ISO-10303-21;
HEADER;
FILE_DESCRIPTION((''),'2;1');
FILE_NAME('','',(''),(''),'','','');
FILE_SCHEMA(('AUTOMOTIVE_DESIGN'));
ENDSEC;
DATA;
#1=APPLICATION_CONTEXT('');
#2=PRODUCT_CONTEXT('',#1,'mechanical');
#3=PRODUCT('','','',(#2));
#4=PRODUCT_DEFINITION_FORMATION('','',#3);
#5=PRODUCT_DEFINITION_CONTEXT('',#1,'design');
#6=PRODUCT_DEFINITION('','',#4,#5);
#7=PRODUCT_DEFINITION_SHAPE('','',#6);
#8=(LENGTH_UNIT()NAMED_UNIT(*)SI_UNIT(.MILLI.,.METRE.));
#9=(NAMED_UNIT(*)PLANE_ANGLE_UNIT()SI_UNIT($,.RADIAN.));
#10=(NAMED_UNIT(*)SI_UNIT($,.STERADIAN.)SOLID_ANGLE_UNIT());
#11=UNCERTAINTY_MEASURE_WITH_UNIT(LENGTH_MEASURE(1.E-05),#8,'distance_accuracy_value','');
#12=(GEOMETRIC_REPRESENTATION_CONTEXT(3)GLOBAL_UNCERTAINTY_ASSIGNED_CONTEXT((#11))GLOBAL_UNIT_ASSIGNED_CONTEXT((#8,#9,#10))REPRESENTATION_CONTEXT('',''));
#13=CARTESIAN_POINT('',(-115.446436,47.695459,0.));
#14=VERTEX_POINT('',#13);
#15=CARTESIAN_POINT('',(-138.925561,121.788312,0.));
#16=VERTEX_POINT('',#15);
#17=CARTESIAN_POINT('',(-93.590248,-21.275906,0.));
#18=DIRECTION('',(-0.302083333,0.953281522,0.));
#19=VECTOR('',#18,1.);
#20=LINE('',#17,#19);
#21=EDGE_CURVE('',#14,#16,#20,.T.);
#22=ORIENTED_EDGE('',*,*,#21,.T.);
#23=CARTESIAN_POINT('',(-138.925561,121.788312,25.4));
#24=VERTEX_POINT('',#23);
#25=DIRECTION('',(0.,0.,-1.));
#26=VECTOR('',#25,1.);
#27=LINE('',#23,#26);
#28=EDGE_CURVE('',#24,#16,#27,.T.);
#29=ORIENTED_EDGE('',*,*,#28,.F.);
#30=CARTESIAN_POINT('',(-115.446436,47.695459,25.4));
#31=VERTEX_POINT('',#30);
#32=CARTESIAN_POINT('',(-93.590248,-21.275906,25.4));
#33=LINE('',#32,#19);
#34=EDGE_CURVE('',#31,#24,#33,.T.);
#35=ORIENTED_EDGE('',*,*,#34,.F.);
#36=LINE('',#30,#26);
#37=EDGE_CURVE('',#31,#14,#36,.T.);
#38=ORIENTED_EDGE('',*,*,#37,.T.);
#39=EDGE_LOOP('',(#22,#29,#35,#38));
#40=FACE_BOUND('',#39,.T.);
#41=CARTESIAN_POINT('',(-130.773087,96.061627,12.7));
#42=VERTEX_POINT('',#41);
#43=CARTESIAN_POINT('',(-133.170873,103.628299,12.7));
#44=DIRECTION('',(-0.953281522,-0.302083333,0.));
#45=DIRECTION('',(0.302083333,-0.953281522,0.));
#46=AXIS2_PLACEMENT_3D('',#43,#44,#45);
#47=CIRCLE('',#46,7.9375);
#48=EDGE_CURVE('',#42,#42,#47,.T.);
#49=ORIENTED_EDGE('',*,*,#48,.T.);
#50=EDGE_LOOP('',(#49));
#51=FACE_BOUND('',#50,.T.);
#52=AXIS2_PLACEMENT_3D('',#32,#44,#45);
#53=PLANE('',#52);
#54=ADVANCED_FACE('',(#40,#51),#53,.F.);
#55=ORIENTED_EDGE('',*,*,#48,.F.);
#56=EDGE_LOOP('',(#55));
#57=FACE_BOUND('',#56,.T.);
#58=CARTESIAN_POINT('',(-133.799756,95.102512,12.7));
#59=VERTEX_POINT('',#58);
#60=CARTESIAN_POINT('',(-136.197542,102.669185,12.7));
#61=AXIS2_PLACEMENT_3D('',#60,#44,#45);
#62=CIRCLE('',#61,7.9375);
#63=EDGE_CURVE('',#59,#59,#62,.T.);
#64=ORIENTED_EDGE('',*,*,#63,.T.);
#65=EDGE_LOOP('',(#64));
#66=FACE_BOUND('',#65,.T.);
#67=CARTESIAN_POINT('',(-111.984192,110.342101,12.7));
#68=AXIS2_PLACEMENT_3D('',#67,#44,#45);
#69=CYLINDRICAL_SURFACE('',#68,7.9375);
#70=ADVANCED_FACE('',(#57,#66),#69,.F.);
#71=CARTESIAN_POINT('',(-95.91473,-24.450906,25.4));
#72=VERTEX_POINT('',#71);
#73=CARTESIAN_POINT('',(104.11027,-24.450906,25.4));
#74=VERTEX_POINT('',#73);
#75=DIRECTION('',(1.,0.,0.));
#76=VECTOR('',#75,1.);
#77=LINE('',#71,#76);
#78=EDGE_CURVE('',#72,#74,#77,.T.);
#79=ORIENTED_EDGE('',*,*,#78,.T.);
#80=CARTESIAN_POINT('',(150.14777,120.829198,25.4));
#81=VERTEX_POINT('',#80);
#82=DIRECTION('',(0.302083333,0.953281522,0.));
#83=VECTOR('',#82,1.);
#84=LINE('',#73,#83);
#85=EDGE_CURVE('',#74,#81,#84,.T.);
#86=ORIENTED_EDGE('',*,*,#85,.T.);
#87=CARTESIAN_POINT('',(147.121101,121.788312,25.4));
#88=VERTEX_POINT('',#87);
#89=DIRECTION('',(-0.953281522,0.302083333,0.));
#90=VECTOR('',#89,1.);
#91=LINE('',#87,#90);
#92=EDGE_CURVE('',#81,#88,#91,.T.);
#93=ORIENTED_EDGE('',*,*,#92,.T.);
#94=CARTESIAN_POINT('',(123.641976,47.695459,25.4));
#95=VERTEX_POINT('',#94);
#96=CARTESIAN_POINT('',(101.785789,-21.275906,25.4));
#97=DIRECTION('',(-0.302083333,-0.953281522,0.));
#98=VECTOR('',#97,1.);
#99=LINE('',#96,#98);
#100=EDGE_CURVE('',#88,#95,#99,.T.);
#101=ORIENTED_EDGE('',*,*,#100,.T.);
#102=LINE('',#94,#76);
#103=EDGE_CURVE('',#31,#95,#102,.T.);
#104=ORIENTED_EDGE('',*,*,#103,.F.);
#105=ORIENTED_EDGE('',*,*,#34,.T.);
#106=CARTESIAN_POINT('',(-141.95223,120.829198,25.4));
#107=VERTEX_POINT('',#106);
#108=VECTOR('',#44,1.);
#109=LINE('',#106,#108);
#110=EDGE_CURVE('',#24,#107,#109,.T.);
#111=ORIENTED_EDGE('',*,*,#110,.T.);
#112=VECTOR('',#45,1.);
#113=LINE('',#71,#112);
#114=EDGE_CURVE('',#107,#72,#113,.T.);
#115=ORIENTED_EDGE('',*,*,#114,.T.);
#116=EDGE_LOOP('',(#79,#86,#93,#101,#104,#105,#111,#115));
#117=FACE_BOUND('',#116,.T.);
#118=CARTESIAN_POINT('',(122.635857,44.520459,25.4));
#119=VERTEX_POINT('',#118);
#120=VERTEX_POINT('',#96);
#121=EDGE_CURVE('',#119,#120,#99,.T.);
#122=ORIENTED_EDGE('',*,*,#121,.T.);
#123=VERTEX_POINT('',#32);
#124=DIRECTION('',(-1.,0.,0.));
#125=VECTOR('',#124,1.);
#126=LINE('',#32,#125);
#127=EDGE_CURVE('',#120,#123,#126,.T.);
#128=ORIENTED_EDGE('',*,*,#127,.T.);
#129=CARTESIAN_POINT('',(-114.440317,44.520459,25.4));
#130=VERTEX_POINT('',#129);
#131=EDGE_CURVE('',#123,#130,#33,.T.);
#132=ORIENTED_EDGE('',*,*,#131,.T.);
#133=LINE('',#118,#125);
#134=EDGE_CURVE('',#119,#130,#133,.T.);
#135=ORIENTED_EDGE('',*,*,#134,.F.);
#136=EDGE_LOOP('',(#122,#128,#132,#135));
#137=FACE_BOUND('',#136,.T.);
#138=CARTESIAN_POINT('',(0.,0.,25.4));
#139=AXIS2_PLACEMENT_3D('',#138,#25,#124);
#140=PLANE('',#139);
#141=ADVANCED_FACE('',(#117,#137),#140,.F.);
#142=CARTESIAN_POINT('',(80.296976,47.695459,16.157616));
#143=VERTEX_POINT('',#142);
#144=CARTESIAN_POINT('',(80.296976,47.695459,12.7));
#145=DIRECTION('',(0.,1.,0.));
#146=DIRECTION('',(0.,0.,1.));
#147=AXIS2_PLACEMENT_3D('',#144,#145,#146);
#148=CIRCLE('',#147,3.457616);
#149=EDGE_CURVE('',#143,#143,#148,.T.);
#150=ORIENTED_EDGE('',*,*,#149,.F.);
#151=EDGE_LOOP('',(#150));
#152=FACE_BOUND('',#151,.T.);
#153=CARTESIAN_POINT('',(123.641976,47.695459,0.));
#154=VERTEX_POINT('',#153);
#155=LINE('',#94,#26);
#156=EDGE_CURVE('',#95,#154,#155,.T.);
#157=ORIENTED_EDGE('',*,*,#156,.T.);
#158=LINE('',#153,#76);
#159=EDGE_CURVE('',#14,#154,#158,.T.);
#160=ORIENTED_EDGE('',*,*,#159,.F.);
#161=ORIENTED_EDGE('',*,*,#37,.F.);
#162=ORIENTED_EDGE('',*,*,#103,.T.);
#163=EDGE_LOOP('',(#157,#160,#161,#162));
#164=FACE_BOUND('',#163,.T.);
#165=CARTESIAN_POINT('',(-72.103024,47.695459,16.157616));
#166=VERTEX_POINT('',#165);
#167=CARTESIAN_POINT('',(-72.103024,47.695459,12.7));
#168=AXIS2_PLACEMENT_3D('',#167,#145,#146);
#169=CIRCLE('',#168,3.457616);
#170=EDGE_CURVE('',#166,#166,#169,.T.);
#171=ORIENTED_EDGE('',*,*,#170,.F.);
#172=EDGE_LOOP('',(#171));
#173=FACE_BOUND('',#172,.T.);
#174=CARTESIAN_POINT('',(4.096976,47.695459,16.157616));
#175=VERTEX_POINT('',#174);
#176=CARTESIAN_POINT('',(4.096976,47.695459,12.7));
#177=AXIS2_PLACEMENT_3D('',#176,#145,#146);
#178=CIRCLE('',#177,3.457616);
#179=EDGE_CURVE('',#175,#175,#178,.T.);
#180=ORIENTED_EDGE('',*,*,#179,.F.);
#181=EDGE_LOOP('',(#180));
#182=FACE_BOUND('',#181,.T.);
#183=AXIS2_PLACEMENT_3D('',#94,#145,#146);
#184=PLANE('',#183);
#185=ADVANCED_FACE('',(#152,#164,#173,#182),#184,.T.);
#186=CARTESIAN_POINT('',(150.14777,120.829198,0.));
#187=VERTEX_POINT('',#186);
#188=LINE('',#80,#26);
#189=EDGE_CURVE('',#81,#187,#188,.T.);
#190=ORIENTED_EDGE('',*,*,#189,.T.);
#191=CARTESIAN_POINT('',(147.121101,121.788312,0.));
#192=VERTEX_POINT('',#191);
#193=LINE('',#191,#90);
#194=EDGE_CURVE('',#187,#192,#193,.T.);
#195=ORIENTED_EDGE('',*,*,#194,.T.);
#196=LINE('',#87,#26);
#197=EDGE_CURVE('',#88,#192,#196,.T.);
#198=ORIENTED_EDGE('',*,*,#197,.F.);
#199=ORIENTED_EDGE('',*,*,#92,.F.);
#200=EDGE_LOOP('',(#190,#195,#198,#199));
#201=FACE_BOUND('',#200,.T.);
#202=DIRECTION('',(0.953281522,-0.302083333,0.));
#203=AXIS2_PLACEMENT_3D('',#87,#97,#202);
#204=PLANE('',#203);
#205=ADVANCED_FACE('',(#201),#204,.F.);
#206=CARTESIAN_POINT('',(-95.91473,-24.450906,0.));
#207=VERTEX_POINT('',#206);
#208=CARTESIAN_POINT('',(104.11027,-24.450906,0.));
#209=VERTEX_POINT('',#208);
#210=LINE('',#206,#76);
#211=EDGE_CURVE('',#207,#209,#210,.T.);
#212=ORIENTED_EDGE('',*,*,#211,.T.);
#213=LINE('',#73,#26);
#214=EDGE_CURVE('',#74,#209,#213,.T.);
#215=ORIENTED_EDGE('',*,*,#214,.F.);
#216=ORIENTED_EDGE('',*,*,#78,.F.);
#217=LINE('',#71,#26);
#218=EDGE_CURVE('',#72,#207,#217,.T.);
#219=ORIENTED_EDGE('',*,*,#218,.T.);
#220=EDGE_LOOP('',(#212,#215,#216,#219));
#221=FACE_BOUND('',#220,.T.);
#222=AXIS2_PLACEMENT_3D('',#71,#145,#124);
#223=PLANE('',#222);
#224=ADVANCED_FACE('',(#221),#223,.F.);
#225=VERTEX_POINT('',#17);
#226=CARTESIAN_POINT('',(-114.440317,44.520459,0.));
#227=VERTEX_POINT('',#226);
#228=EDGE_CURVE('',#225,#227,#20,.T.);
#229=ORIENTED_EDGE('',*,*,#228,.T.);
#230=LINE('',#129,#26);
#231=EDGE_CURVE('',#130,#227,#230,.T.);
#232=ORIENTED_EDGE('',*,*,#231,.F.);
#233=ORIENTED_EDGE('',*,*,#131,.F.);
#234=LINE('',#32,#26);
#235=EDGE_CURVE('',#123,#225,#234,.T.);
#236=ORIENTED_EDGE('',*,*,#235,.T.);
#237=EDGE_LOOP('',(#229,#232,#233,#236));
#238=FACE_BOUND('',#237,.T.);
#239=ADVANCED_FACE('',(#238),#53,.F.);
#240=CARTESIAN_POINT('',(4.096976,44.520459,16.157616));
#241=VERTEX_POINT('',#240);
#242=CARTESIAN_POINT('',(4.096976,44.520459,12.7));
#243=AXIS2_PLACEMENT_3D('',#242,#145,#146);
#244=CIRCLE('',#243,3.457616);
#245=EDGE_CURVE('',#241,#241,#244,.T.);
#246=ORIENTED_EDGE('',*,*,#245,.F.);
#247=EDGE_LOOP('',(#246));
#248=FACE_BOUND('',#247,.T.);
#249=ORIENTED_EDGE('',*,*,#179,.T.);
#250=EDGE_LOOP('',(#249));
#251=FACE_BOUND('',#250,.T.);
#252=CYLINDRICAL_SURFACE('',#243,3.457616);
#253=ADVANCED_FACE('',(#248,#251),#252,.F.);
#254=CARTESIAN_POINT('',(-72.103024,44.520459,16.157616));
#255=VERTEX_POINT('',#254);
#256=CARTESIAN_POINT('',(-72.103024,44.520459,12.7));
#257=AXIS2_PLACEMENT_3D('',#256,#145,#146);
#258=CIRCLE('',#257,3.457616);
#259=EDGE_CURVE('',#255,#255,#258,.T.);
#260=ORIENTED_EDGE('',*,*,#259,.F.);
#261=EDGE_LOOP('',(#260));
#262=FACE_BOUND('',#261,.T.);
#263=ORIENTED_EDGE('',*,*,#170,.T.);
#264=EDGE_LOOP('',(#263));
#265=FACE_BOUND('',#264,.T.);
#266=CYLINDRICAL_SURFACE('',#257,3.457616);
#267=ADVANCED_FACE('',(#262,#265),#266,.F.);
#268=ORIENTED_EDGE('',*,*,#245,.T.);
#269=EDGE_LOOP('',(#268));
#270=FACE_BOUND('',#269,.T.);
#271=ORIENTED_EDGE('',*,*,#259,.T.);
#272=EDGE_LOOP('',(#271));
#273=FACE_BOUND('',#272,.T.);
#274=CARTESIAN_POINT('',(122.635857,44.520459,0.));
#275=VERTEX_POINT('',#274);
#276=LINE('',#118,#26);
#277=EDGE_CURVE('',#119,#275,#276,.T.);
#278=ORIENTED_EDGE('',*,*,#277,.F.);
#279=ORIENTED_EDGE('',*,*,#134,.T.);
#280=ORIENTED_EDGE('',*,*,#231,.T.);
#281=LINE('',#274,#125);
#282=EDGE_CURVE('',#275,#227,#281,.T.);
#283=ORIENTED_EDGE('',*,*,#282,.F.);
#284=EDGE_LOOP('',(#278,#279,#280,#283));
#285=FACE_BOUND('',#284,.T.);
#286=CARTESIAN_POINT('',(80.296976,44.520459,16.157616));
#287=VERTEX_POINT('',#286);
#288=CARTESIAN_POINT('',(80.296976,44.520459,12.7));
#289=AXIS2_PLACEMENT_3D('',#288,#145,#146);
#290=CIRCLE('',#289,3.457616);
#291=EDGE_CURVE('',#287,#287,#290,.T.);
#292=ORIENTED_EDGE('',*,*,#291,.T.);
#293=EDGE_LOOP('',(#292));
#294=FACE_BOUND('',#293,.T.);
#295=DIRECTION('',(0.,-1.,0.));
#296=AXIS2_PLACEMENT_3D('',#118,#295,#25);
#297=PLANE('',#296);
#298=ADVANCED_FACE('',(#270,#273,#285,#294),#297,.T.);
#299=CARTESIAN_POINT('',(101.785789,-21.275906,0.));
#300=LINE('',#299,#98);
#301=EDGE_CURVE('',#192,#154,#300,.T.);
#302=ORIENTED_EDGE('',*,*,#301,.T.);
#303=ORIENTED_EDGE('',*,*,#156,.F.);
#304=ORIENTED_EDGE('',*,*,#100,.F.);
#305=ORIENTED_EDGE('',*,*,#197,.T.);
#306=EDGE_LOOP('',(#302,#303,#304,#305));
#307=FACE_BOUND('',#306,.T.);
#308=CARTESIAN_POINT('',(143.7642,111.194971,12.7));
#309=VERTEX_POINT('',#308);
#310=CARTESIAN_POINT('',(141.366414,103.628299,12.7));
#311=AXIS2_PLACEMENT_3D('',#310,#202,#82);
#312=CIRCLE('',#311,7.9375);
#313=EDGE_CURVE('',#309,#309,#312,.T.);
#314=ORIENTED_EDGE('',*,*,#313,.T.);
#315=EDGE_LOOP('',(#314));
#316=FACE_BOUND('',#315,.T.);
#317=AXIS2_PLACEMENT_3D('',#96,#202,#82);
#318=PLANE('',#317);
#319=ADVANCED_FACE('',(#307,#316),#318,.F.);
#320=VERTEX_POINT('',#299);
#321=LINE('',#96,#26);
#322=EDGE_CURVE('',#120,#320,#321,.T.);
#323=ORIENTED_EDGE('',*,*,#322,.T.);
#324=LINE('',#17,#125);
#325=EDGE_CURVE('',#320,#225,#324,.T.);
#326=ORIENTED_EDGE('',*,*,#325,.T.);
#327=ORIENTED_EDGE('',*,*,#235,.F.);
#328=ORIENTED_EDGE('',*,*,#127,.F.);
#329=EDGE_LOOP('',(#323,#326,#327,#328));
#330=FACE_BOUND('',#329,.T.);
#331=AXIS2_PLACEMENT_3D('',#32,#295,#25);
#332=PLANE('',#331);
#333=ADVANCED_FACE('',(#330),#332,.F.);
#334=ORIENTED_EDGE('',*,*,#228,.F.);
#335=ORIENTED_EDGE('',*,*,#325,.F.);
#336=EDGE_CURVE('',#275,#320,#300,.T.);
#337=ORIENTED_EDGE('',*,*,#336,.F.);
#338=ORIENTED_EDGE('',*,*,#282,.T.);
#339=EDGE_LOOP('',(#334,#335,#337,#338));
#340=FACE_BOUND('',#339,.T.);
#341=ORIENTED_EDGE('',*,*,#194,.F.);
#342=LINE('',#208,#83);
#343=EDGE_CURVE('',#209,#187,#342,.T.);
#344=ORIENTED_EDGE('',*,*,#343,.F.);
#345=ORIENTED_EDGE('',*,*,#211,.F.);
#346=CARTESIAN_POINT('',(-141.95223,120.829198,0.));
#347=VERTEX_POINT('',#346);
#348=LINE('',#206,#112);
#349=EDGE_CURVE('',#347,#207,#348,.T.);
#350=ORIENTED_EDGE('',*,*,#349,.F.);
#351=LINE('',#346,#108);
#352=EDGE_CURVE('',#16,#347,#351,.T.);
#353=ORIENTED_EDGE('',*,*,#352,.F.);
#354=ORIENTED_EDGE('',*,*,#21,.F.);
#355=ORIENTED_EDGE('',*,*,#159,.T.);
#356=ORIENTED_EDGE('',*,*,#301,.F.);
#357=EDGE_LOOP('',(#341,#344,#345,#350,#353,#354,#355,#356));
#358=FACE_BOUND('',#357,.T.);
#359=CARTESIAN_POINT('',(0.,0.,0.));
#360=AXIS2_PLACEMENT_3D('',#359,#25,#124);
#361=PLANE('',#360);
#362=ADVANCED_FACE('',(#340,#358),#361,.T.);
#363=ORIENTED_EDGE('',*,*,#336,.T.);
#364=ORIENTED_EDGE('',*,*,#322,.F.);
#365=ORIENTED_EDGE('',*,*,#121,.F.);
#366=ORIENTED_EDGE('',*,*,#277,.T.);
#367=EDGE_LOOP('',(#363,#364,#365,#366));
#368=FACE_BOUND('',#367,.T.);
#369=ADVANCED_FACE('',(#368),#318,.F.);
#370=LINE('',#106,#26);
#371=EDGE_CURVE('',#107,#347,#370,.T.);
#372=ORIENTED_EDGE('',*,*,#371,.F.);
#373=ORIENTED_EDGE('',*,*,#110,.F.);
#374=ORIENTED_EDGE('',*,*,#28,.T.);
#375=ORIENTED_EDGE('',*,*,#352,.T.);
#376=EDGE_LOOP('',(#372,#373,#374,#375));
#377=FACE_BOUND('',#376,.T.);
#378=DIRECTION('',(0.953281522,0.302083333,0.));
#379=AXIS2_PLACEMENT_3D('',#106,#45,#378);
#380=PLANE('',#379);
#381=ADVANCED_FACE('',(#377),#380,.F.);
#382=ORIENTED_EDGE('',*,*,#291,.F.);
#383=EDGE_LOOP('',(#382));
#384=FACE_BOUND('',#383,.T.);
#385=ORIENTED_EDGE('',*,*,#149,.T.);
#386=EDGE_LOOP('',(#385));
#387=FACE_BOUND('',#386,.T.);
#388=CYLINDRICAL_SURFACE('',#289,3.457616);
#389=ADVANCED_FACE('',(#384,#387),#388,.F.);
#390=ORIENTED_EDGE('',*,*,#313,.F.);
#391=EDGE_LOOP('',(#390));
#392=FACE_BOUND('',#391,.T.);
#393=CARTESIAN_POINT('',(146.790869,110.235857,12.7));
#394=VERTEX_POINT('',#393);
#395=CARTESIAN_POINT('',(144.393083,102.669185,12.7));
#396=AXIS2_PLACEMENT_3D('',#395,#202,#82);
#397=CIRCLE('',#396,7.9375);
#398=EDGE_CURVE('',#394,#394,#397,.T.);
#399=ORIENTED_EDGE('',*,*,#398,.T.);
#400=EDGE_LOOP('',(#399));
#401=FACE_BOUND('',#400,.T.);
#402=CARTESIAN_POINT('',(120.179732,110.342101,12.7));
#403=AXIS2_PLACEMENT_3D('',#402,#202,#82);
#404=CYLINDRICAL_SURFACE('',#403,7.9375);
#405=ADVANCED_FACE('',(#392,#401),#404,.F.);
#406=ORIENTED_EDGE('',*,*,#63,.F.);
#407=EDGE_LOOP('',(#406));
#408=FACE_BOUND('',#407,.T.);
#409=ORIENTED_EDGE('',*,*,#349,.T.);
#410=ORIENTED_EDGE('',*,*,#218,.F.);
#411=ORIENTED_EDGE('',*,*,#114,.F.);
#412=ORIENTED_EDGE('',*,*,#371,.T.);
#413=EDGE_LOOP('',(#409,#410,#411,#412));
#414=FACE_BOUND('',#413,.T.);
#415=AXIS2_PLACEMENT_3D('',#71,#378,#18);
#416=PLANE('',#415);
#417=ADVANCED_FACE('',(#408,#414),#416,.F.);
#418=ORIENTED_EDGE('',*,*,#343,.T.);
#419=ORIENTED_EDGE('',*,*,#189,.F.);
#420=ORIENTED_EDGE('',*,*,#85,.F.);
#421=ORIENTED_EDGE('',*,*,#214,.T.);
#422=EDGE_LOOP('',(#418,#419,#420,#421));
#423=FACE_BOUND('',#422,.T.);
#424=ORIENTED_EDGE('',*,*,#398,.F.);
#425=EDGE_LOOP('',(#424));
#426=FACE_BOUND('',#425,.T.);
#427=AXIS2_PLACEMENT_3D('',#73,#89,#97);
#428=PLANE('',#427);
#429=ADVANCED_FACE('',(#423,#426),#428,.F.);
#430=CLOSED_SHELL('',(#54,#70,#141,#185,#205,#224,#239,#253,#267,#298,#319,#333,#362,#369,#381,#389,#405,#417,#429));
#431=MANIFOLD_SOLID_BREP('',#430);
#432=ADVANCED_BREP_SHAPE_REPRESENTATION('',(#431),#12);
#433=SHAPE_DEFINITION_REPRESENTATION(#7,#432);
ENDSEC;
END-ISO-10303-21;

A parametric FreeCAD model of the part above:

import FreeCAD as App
import Part
import Sketcher
from FreeCAD import Vector
Q = App.Units.Quantity


def add_polygon(sketch, points):
    """Adds a closed chain of lines whose ends are joined by coincident constraints."""
    first, n = sketch.GeometryCount, len(points)
    for a, b in zip(points, points[1:] + points[:1]):
        sketch.addGeometry(Part.LineSegment(App.Vector(*a, 0), App.Vector(*b, 0)), False)
    for i in range(n):
        sketch.addConstraint(Sketcher.Constraint("Coincident", first + i, 2, first + (i + 1) % n, 1))

doc = App.newDocument("Part")
params = doc.addObject("Spreadsheet::Sheet", "Params")
for row, (alias, value) in enumerate([
    ("sketch1_length", "6 in"),
    ("sketch1_width", "7.875 in"),
    ("sketch1_length2", "0.125 in"),
    ("pad1_length", "1 in"),
    ("sketch2_diameter", "0.625 in"),
    ("pocket1_length", "1 in"),
    ("sketch3_diameter", "0.625 in"),
    ("pocket2_length", "1 in"),
    ("pad2_length", "1 in"),
    ("pocket3_length", "0.125 in"),
], start=1):
    params.set(f"A{row}", alias)
    params.set(f"B{row}", "=" + value)
    params.setAlias(f"B{row}", alias)

body = doc.addObject("PartDesign::Body", "Body")

# Sketch on XY plane
sketch1 = body.newObject("Sketcher::SketchObject", "Sketch")
sketch1.AttachmentSupport = (doc.getObject("XY_Plane"), [""])
sketch1.MapMode = "FlatFace"
add_polygon(sketch1, [(-95.9, -24.5), (104.1, -24.5), (150.1, 120.8), (147.1, 121.8), (101.8, -21.3), (-93.6, -21.3), (-138.9, 121.8), (-142, 120.8)])  # lines 0-7
sketch1.addConstraint([
    Sketcher.Constraint("Horizontal", 0),
    Sketcher.Constraint("Horizontal", 4),
    Sketcher.Constraint("Perpendicular", 1, 2),
    Sketcher.Constraint("Perpendicular", 2, 3),
    Sketcher.Constraint("Perpendicular", 5, 6),
    Sketcher.Constraint("Perpendicular", 6, 7),
    Sketcher.Constraint("Horizontal", 2, 2, 5, 2),
    Sketcher.Constraint("Horizontal", 1, 2, 6, 2),
    Sketcher.Constraint("Equal", 3, 5),
    Sketcher.Constraint("Distance", 1, Q("6 in")),
    Sketcher.Constraint("DistanceX", 0, 1, 0, 2, Q("7.875 in")),
    Sketcher.Constraint("Distance", 2, Q("0.125 in")),
    Sketcher.Constraint("DistanceX", 0, 2, 1, 2, Q("1.8125 in")),
    Sketcher.Constraint("DistanceY", 0, 2, 3, 2, Q("0.125 in")),
    Sketcher.Constraint("DistanceX", -1, 1, 2, 2, Q("147.121101 mm")),
    Sketcher.Constraint("DistanceY", 0, 2, -1, 1, Q("24.450906 mm")),
])
sketch1.setExpression("Constraints[17]", "Params.sketch1_length")
sketch1.setExpression("Constraints[18]", "Params.sketch1_width")
sketch1.setExpression("Constraints[19]", "Params.sketch1_length2")
pad1 = body.newObject("PartDesign::Pad", "Pad")
pad1.Profile = sketch1
pad1.setExpression("Length", "Params.pad1_length")

# Sketch on an angled plane
sketch2 = body.newObject("Sketcher::SketchObject", "Sketch001")
sketch2.Placement = App.Placement(Vector(-94.203233, -29.85186, 0), App.Rotation(Vector(0, 0, 1), Vector(-0.302083333, 0.953281522, 0), Vector(-0.953281522, -0.302083333, 0), "ZXY"))
sketch2.addGeometry(Part.Circle(Vector(13, 139, 0), Vector(0, 0, 1), 8), False)
sketch2.addConstraint([
    Sketcher.Constraint("Diameter", 0, Q("0.625 in")),
    Sketcher.Constraint("DistanceX", -1, 1, 0, 3, Q("0.5 in")),
    Sketcher.Constraint("DistanceY", -1, 1, 0, 3, Q("139.015644 mm")),
])
sketch2.setExpression("Constraints[0]", "Params.sketch2_diameter")
pocket1 = body.newObject("PartDesign::Pocket", "Pocket")
pocket1.Profile = sketch2
pocket1.setExpression("Length", "Params.pocket1_length")

# Sketch on an angled plane
sketch3 = body.newObject("Sketcher::SketchObject", "Sketch002")
sketch3.Placement = App.Placement(Vector(101.650895, -32.211934, 0), App.Rotation(Vector(0, 0, -1), Vector(0.302083333, 0.953281522, 0), Vector(0.953281522, -0.302083333, 0), "ZXY"))
sketch3.addGeometry(Part.Circle(Vector(-13, 141, 0), Vector(0, 0, 1), 8), False)
sketch3.addConstraint([
    Sketcher.Constraint("Diameter", 0, Q("0.625 in")),
    Sketcher.Constraint("DistanceX", 0, 3, -1, 1, Q("0.5 in")),
    Sketcher.Constraint("DistanceY", -1, 1, 0, 3, Q("141.49138 mm")),
])
sketch3.setExpression("Constraints[0]", "Params.sketch3_diameter")
pocket2 = body.newObject("PartDesign::Pocket", "Pocket001")
pocket2.Profile = sketch3
pocket2.setExpression("Length", "Params.pocket2_length")

# Sketch on XY plane
sketch4 = body.newObject("Sketcher::SketchObject", "Sketch003")
sketch4.AttachmentSupport = (doc.getObject("XY_Plane"), [""])
sketch4.MapMode = "FlatFace"
add_polygon(sketch4, [(-115.4, 47.7), (123.6, 47.7), (122.6, 44.5), (-114.4, 44.5)])  # lines 0-3
sketch4.addConstraint([
    Sketcher.Constraint("Horizontal", 0),
    Sketcher.Constraint("Horizontal", 2),
    Sketcher.Constraint("Equal", 1, 3),
    Sketcher.Constraint("DistanceY", 1, 2, 0, 2, Q("0.125 in")),
    Sketcher.Constraint("Distance", 1, Q("3.330601 mm")),
    Sketcher.Constraint("DistanceX", 0, 1, 0, 2, Q("239.088412 mm")),
    Sketcher.Constraint("DistanceY", -1, 1, 0, 2, Q("47.695459 mm")),
    Sketcher.Constraint("DistanceX", -1, 1, 0, 2, Q("123.641976 mm")),
])
pad2 = body.newObject("PartDesign::Pad", "Pad001")
pad2.Profile = sketch4
pad2.setExpression("Length", "Params.pad2_length")

# Sketch on XZ plane
sketch5 = body.newObject("Sketcher::SketchObject", "Sketch004")
sketch5.AttachmentSupport = (doc.getObject("XZ_Plane"), [""])
sketch5.MapMode = "FlatFace"
sketch5.AttachmentOffset = App.Placement(Vector(0, 0, -47.695459), App.Rotation())
sketch5.addGeometry([
    Part.Circle(Vector(-72.1, 12.7, 0), Vector(0, 0, 1), 3.5),
    Part.Circle(Vector(4.1, 12.7, 0), Vector(0, 0, 1), 3.5),
    Part.Circle(Vector(80.3, 12.7, 0), Vector(0, 0, 1), 3.5),
], False)
sketch5.addConstraint([
    Sketcher.Constraint("Equal", 0, 1),
    Sketcher.Constraint("Equal", 1, 2),
    Sketcher.Constraint("Horizontal", 0, 3, 1, 3),
    Sketcher.Constraint("Horizontal", 1, 3, 2, 3),
    Sketcher.Constraint("DistanceX", 0, 3, 1, 3, Q("3 in")),
    Sketcher.Constraint("DistanceX", 1, 3, 2, 3, Q("3 in")),
    Sketcher.Constraint("DistanceY", -1, 1, 0, 3, Q("0.5 in")),
    Sketcher.Constraint("Diameter", 0, Q("6.915231 mm")),
    Sketcher.Constraint("DistanceX", 0, 3, -1, 1, Q("72.103024 mm")),
])
pocket3 = body.newObject("PartDesign::Pocket", "Pocket002")
pocket3.Profile = sketch5
pocket3.setExpression("Length", "Params.pocket3_length")
pocket3.Reversed = True

doc.recompute()
